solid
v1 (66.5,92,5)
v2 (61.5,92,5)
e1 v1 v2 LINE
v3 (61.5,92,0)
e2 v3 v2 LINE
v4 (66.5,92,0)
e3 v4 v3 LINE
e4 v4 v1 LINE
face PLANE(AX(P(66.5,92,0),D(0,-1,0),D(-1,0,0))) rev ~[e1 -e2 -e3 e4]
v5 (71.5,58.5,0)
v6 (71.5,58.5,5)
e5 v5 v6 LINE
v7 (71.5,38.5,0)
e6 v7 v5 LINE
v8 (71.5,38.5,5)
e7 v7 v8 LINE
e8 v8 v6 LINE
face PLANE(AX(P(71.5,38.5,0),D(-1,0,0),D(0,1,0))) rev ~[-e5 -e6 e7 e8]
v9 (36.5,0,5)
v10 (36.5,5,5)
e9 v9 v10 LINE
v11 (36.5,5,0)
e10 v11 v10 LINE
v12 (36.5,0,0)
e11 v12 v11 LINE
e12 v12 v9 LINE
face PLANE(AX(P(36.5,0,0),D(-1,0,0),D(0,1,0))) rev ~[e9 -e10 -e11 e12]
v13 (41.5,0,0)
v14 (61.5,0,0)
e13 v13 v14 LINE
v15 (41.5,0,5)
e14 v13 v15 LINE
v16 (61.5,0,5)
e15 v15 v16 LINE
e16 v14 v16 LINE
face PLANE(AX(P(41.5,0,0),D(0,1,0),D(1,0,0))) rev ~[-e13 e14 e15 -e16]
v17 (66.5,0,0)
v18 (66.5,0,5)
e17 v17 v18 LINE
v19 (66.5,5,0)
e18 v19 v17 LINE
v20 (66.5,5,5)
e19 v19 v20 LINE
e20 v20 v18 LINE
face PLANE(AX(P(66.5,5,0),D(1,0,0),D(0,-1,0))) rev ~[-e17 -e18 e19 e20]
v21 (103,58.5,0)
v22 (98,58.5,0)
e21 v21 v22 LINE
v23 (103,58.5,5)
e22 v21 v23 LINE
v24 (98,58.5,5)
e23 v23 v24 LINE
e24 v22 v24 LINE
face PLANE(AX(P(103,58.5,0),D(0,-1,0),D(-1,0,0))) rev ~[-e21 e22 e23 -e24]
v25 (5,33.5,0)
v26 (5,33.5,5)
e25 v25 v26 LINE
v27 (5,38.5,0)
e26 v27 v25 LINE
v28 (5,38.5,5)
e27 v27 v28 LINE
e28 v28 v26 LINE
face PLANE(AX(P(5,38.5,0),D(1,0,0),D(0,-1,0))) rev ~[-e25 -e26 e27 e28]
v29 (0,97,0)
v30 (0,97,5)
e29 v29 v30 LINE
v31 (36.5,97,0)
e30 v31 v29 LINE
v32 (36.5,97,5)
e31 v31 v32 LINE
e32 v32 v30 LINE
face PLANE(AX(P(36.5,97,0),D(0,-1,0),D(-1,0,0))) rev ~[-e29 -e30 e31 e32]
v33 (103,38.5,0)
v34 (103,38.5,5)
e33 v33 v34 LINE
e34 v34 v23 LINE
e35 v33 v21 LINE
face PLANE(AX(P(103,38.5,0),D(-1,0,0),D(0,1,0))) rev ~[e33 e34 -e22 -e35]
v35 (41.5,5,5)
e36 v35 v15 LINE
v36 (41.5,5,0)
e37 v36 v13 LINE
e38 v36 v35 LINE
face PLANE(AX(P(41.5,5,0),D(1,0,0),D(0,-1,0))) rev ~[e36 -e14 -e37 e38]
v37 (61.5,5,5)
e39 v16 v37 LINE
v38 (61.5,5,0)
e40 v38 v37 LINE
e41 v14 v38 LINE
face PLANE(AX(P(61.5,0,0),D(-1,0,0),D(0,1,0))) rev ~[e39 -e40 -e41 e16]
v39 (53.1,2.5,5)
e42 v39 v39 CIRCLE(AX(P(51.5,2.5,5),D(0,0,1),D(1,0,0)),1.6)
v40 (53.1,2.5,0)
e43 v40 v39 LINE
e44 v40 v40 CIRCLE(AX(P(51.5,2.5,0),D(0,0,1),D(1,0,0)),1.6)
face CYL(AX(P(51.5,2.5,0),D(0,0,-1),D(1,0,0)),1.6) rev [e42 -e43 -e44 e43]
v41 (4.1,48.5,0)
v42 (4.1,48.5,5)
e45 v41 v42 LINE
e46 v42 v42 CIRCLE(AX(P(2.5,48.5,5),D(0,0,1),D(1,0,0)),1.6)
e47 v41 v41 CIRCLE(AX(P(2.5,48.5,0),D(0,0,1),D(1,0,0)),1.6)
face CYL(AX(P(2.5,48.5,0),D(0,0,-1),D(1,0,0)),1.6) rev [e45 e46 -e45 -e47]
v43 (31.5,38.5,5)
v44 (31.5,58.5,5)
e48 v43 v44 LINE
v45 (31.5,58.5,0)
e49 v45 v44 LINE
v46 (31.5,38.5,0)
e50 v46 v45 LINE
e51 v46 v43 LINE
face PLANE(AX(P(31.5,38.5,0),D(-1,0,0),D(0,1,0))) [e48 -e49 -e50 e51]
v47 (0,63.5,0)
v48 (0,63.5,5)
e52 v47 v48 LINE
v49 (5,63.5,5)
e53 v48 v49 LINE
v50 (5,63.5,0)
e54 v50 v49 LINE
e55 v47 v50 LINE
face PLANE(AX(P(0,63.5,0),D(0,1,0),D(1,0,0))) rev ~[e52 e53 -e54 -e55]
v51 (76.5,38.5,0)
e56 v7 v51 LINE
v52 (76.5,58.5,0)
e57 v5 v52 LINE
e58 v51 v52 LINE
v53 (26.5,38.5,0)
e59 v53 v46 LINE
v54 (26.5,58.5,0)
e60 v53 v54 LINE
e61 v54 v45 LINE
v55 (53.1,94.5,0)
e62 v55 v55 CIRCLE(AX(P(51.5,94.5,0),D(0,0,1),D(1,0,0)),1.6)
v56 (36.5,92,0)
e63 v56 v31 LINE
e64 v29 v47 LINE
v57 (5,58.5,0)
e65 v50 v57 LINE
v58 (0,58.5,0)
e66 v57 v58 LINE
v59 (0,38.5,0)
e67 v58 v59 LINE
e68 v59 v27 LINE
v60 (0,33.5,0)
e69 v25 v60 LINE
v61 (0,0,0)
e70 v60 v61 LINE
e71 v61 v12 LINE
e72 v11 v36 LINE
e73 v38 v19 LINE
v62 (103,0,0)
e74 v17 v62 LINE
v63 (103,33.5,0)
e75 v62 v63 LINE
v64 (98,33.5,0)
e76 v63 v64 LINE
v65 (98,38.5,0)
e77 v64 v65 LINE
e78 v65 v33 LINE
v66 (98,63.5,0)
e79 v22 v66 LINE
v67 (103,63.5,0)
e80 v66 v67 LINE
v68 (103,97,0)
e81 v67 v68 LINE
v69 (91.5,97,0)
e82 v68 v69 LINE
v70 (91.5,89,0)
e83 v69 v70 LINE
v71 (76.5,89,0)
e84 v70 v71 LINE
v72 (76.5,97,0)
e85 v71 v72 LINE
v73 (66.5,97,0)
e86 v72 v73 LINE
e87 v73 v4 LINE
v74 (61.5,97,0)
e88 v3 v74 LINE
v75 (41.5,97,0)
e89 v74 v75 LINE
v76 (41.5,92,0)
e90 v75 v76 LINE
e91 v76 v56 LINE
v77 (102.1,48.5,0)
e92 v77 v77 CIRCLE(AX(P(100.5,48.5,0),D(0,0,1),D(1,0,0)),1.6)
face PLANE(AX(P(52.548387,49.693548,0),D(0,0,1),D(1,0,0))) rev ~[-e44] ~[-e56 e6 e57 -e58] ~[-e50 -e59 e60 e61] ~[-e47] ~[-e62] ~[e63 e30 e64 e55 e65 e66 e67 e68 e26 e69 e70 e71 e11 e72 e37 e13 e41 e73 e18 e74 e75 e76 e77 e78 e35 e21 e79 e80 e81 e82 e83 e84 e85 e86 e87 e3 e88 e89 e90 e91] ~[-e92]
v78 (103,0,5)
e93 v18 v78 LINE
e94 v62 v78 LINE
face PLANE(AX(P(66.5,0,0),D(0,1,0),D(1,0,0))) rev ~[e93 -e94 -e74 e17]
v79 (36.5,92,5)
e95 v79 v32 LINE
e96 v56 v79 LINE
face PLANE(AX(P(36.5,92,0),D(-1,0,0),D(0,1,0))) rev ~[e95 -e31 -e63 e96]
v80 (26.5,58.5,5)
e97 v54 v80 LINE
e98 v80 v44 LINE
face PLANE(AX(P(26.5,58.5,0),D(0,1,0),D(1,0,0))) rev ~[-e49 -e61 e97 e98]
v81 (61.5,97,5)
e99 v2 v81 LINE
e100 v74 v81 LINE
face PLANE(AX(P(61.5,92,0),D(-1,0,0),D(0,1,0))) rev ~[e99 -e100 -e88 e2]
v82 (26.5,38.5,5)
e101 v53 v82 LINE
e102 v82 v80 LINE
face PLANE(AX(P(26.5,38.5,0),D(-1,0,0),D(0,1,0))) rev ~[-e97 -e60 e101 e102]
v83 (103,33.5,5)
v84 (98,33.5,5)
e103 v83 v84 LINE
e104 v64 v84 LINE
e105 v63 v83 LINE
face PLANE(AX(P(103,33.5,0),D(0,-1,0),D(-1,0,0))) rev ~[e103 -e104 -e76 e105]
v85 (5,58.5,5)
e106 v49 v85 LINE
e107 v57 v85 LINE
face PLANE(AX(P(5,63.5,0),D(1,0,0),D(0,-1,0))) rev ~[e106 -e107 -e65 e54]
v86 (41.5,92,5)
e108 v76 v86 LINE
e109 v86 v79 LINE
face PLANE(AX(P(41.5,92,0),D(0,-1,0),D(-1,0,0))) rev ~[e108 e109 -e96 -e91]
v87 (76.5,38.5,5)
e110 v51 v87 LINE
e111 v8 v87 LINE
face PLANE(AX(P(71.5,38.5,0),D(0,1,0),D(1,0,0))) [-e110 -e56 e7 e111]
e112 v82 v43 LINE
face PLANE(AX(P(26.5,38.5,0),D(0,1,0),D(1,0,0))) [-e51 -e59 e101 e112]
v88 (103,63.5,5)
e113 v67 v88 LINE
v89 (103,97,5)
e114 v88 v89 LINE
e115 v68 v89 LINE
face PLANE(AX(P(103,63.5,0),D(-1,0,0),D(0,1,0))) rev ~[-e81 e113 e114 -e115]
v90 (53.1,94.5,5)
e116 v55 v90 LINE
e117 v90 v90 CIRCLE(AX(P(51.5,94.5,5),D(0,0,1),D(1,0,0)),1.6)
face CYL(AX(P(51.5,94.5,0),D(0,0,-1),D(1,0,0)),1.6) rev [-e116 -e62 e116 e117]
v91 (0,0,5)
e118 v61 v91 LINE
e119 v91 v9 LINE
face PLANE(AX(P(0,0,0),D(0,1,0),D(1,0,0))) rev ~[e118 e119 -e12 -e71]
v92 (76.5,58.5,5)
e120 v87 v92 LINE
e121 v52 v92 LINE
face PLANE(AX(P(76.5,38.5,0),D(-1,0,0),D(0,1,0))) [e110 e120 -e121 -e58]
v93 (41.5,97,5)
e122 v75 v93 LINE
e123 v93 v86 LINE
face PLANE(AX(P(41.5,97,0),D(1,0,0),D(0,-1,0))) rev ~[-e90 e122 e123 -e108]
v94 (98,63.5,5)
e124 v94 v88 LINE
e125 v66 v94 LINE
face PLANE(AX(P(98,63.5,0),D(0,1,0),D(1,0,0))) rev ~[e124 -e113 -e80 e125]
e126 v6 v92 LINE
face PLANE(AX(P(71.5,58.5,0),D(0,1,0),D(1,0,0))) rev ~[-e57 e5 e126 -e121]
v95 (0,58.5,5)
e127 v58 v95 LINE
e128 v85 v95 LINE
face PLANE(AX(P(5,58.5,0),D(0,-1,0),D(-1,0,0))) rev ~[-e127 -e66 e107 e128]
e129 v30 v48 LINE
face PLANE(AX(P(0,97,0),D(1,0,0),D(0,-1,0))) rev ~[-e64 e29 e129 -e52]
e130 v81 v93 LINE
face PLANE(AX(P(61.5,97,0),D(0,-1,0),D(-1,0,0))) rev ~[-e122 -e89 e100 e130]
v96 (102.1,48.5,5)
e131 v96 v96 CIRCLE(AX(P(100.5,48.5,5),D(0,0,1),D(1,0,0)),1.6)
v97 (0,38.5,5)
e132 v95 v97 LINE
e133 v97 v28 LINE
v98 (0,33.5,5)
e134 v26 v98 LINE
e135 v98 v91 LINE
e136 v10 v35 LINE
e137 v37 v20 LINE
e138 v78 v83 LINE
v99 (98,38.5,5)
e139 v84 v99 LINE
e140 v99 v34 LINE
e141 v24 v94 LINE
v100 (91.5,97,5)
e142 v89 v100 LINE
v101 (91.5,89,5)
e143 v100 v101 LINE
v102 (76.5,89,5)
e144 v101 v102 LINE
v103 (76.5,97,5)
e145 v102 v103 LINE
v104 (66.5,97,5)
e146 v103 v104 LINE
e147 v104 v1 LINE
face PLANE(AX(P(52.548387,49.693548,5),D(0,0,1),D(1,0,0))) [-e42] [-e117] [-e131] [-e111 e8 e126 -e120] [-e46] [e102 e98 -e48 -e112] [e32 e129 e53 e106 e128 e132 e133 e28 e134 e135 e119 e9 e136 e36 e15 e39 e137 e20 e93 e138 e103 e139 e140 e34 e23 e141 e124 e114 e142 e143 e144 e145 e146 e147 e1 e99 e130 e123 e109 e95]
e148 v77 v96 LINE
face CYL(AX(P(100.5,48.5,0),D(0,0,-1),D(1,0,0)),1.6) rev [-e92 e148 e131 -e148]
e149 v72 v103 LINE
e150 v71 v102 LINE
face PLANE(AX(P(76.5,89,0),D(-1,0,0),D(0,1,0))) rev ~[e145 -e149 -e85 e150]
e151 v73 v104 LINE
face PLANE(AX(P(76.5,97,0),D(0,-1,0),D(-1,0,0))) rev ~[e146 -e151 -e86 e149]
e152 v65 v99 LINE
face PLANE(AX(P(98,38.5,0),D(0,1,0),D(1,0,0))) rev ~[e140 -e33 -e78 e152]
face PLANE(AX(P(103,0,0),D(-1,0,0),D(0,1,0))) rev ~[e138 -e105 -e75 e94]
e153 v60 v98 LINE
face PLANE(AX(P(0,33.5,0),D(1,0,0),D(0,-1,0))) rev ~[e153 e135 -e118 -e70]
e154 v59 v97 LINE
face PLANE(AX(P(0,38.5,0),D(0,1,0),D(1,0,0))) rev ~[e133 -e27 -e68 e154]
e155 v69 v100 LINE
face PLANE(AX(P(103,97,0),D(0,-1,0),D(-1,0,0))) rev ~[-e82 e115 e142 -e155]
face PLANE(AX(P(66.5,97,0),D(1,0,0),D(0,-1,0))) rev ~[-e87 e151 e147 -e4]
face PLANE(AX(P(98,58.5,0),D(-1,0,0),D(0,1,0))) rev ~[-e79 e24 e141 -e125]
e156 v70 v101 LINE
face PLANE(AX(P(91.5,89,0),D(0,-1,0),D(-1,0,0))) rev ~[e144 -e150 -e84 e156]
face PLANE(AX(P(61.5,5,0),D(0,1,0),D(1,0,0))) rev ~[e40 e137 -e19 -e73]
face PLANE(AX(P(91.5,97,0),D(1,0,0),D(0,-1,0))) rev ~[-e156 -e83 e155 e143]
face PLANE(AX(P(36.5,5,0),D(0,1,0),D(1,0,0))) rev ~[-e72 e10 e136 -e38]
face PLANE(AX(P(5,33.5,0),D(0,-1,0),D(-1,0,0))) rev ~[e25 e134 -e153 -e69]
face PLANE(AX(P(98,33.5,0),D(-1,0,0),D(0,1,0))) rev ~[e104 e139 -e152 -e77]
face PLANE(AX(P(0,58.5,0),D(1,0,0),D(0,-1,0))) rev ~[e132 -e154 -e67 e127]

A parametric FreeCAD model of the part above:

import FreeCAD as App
import Part
import Sketcher
Q = App.Units.Quantity


def add_polygon(sketch, points):
    """Adds a closed chain of lines whose ends are joined by coincident constraints."""
    first, n = sketch.GeometryCount, len(points)
    for a, b in zip(points, points[1:] + points[:1]):
        sketch.addGeometry(Part.LineSegment(App.Vector(*a, 0), App.Vector(*b, 0)), False)
    for i in range(n):
        sketch.addConstraint(Sketcher.Constraint("Coincident", first + i, 2, first + (i + 1) % n, 1))

doc = App.newDocument("Part")
params = doc.addObject("Spreadsheet::Sheet", "Params")
for row, (alias, value) in enumerate([
    ("sketch1_diameter", "3.2 mm"),
    ("sketch1_width", "5 mm"),
    ("sketch1_width2", "20 mm"),
    ("sketch1_width3", "15 mm"),
    ("sketch1_width4", "10 mm"),
    ("pad1_length", "5 mm"),
], start=1):
    params.set(f"A{row}", alias)
    params.set(f"B{row}", "=" + value)
    params.setAlias(f"B{row}", alias)

body = doc.addObject("PartDesign::Body", "Body")

# Sketch on XY plane
sketch1 = body.newObject("Sketcher::SketchObject", "Sketch")
sketch1.AttachmentSupport = (doc.getObject("XY_Plane"), [""])
sketch1.MapMode = "FlatFace"
add_polygon(sketch1, [(41.5, 97), (41.5, 92), (36.5, 92), (36.5, 97), (0, 97), (0, 63.5), (5, 63.5), (5, 58.5), (0, 58.5), (0, 38.5), (5, 38.5), (5, 33.5), (0, 33.5), (0, 0), (36.5, 0), (36.5, 5), (41.5, 5), (41.5, 0), (61.5, 0), (61.5, 5), (66.5, 5), (66.5, 0), (103, 0), (103, 33.5), (98, 33.5), (98, 38.5), (103, 38.5), (103, 58.5), (98, 58.5), (98, 63.5), (103, 63.5), (103, 97), (91.5, 97), (91.5, 89), (76.5, 89), (76.5, 97), (66.5, 97), (66.5, 92), (61.5, 92), (61.5, 97)])  # lines 0-39
sketch1.addGeometry(Part.Circle(App.Vector(51.5, 2.5, 0), App.Vector(0, 0, 1), 1.6), False)  # 40
sketch1.addGeometry(Part.Circle(App.Vector(2.5, 48.5, 0), App.Vector(0, 0, 1), 1.6), False)  # 41
add_polygon(sketch1, [(31.5, 38.5), (26.5, 38.5), (26.5, 58.5), (31.5, 58.5)])  # lines 42-45
add_polygon(sketch1, [(76.5, 38.5), (71.5, 38.5), (71.5, 58.5), (76.5, 58.5)])  # lines 46-49
sketch1.addGeometry(Part.Circle(App.Vector(100.5, 48.5, 0), App.Vector(0, 0, 1), 1.6), False)  # 50
sketch1.addGeometry(Part.Circle(App.Vector(51.5, 94.5, 0), App.Vector(0, 0, 1), 1.6), False)  # 51
sketch1.addConstraint(Sketcher.Constraint("Vertical", 0))
sketch1.addConstraint(Sketcher.Constraint("Horizontal", 1))
sketch1.addConstraint(Sketcher.Constraint("Vertical", 2))
sketch1.addConstraint(Sketcher.Constraint("Horizontal", 3))
sketch1.addConstraint(Sketcher.Constraint("Vertical", 4))
sketch1.addConstraint(Sketcher.Constraint("Horizontal", 5))
sketch1.addConstraint(Sketcher.Constraint("Vertical", 6))
sketch1.addConstraint(Sketcher.Constraint("Horizontal", 7))
sketch1.addConstraint(Sketcher.Constraint("Vertical", 8))
sketch1.addConstraint(Sketcher.Constraint("Horizontal", 9))
sketch1.addConstraint(Sketcher.Constraint("Vertical", 10))
sketch1.addConstraint(Sketcher.Constraint("Horizontal", 11))
sketch1.addConstraint(Sketcher.Constraint("Vertical", 12))
sketch1.addConstraint(Sketcher.Constraint("Horizontal", 13))
sketch1.addConstraint(Sketcher.Constraint("Vertical", 14))
sketch1.addConstraint(Sketcher.Constraint("Horizontal", 15))
sketch1.addConstraint(Sketcher.Constraint("Vertical", 16))
sketch1.addConstraint(Sketcher.Constraint("Horizontal", 17))
sketch1.addConstraint(Sketcher.Constraint("Vertical", 18))
sketch1.addConstraint(Sketcher.Constraint("Horizontal", 19))
sketch1.addConstraint(Sketcher.Constraint("Vertical", 20))
sketch1.addConstraint(Sketcher.Constraint("Horizontal", 21))
sketch1.addConstraint(Sketcher.Constraint("Vertical", 22))
sketch1.addConstraint(Sketcher.Constraint("Horizontal", 23))
sketch1.addConstraint(Sketcher.Constraint("Vertical", 24))
sketch1.addConstraint(Sketcher.Constraint("Horizontal", 25))
sketch1.addConstraint(Sketcher.Constraint("Vertical", 26))
sketch1.addConstraint(Sketcher.Constraint("Horizontal", 27))
sketch1.addConstraint(Sketcher.Constraint("Vertical", 28))
sketch1.addConstraint(Sketcher.Constraint("Horizontal", 29))
sketch1.addConstraint(Sketcher.Constraint("Vertical", 30))
sketch1.addConstraint(Sketcher.Constraint("Horizontal", 31))
sketch1.addConstraint(Sketcher.Constraint("Vertical", 32))
sketch1.addConstraint(Sketcher.Constraint("Horizontal", 33))
sketch1.addConstraint(Sketcher.Constraint("Vertical", 34))
sketch1.addConstraint(Sketcher.Constraint("Horizontal", 35))
sketch1.addConstraint(Sketcher.Constraint("Vertical", 36))
sketch1.addConstraint(Sketcher.Constraint("Horizontal", 37))
sketch1.addConstraint(Sketcher.Constraint("Vertical", 38))
sketch1.addConstraint(Sketcher.Constraint("Horizontal", 39))
sketch1.addConstraint(Sketcher.Constraint("Horizontal", 42))
sketch1.addConstraint(Sketcher.Constraint("Vertical", 43))
sketch1.addConstraint(Sketcher.Constraint("Horizontal", 44))
sketch1.addConstraint(Sketcher.Constraint("Vertical", 45))
sketch1.addConstraint(Sketcher.Constraint("Horizontal", 46))
sketch1.addConstraint(Sketcher.Constraint("Vertical", 47))
sketch1.addConstraint(Sketcher.Constraint("Horizontal", 48))
sketch1.addConstraint(Sketcher.Constraint("Vertical", 49))
sketch1.addConstraint(Sketcher.Constraint("Coincident", 12, 2, -1, 1))
sketch1.addConstraint(Sketcher.Constraint("Equal", 40, 41))
sketch1.addConstraint(Sketcher.Constraint("Equal", 41, 50))
sketch1.addConstraint(Sketcher.Constraint("Equal", 50, 51))
sketch1.addConstraint(Sketcher.Constraint("PointOnObject", 3, 2, -2))
sketch1.addConstraint(Sketcher.Constraint("PointOnObject", 7, 2, -2))
sketch1.addConstraint(Sketcher.Constraint("PointOnObject", 16, 2, -1))
sketch1.addConstraint(Sketcher.Constraint("PointOnObject", 20, 2, -1))
sketch1.addConstraint(Sketcher.Constraint("Horizontal", 41, 3, 50, 3))
sketch1.addConstraint(Sketcher.Constraint("Horizontal", 15, 2, 18, 2))
sketch1.addConstraint(Sketcher.Constraint("Horizontal", 11, 2, 22, 2))
sketch1.addConstraint(Sketcher.Constraint("Horizontal", 9, 2, 24, 2))
sketch1.addConstraint(Sketcher.Constraint("Horizontal", 7, 2, 26, 2))
sketch1.addConstraint(Sketcher.Constraint("Horizontal", 5, 2, 28, 2))
sketch1.addConstraint(Sketcher.Constraint("Horizontal", 3, 2, 30, 2))
sketch1.addConstraint(Sketcher.Constraint("Horizontal", 31, 2, 34, 2))
sketch1.addConstraint(Sketcher.Constraint("Horizontal", 1, 2, 36, 2))
sketch1.addConstraint(Sketcher.Constraint("Horizontal", 35, 2, 38, 2))
sketch1.addConstraint(Sketcher.Constraint("Horizontal", 25, 2, 42, 2))
sketch1.addConstraint(Sketcher.Constraint("Horizontal", 27, 2, 43, 2))
sketch1.addConstraint(Sketcher.Constraint("Horizontal", 45, 2, 46, 2))
sketch1.addConstraint(Sketcher.Constraint("Horizontal", 44, 2, 47, 2))
sketch1.addConstraint(Sketcher.Constraint("Vertical", 40, 3, 51, 3))
sketch1.addConstraint(Sketcher.Constraint("Vertical", 6, 2, 9, 2))
sketch1.addConstraint(Sketcher.Constraint("Vertical", 2, 2, 13, 2))
sketch1.addConstraint(Sketcher.Constraint("Vertical", 0, 2, 15, 2))
sketch1.addConstraint(Sketcher.Constraint("Vertical", 22, 2, 25, 2))
sketch1.addConstraint(Sketcher.Constraint("Vertical", 24, 2, 27, 2))
sketch1.addConstraint(Sketcher.Constraint("Vertical", 26, 2, 29, 2))
sketch1.addConstraint(Sketcher.Constraint("Vertical", 20, 2, 35, 2))
sketch1.addConstraint(Sketcher.Constraint("Vertical", 18, 2, 37, 2))
sketch1.addConstraint(Sketcher.Constraint("Vertical", 34, 2, 48, 2))
sketch1.addConstraint(Sketcher.Constraint("Equal", 1, 5))
sketch1.addConstraint(Sketcher.Constraint("Equal", 15, 19))
sketch1.addConstraint(Sketcher.Constraint("Equal", 13, 21))
sketch1.addConstraint(Sketcher.Constraint("Equal", 19, 23))
sketch1.addConstraint(Sketcher.Constraint("Equal", 37, 42))
sketch1.addConstraint(Sketcher.Constraint("Equal", 44, 46))
sketch1.addConstraint(Sketcher.Constraint("Equal", 48, 0))
sketch1.addConstraint(Sketcher.Constraint("Equal", 2, 6))
sketch1.addConstraint(Sketcher.Constraint("Equal", 39, 8))
sketch1.addConstraint(Sketcher.Constraint("Equal", 6, 10))
sketch1.addConstraint(Sketcher.Constraint("Equal", 4, 12))
sketch1.addConstraint(Sketcher.Constraint("Equal", 10, 14))
sketch1.addConstraint(Sketcher.Constraint("Diameter", 40, Q("3.2 mm")))
sketch1.addConstraint(Sketcher.Constraint("DistanceX", 1, 2, 1, 1, Q("5 mm")))
sketch1.addConstraint(Sketcher.Constraint("DistanceX", 17, 1, 17, 2, Q("20 mm")))
sketch1.addConstraint(Sketcher.Constraint("DistanceX", 33, 2, 33, 1, Q("15 mm")))
sketch1.addConstraint(Sketcher.Constraint("DistanceX", 35, 2, 35, 1, Q("10 mm")))
sketch1.addConstraint(Sketcher.Constraint("DistanceY", 32, 2, 32, 1, Q("8 mm")))
sketch1.addConstraint(Sketcher.Constraint("DistanceX", 3, 2, 3, 1, Q("36.5 mm")))
sketch1.addConstraint(Sketcher.Constraint("DistanceY", 4, 2, 4, 1, Q("33.5 mm")))
sketch1.addConstraint(Sketcher.Constraint("DistanceX", 41, 3, 40, 3, Q("49 mm")))
sketch1.addConstraint(Sketcher.Constraint("DistanceY", 40, 3, 41, 3, Q("46 mm")))
sketch1.addConstraint(Sketcher.Constraint("DistanceX", 40, 3, 50, 3, Q("49 mm")))
sketch1.addConstraint(Sketcher.Constraint("DistanceY", 41, 3, 51, 3, Q("46 mm")))
sketch1.addConstraint(Sketcher.Constraint("DistanceX", 0, 2, 51, 3, Q("10 mm")))
sketch1.addConstraint(Sketcher.Constraint("DistanceY", 41, 3, 4, 2, Q("15 mm")))
sketch1.addConstraint(Sketcher.Constraint("DistanceX", 41, 3, 42, 2, Q("24 mm")))
sketch1.setExpression("Constraints[140]", "Params.sketch1_diameter")
sketch1.setExpression("Constraints[141]", "Params.sketch1_width")
sketch1.setExpression("Constraints[142]", "Params.sketch1_width2")
sketch1.setExpression("Constraints[143]", "Params.sketch1_width3")
sketch1.setExpression("Constraints[144]", "Params.sketch1_width4")
pad1 = body.newObject("PartDesign::Pad", "Pad")
pad1.Profile = sketch1
pad1.setExpression("Length", "Params.pad1_length")

doc.recompute()
